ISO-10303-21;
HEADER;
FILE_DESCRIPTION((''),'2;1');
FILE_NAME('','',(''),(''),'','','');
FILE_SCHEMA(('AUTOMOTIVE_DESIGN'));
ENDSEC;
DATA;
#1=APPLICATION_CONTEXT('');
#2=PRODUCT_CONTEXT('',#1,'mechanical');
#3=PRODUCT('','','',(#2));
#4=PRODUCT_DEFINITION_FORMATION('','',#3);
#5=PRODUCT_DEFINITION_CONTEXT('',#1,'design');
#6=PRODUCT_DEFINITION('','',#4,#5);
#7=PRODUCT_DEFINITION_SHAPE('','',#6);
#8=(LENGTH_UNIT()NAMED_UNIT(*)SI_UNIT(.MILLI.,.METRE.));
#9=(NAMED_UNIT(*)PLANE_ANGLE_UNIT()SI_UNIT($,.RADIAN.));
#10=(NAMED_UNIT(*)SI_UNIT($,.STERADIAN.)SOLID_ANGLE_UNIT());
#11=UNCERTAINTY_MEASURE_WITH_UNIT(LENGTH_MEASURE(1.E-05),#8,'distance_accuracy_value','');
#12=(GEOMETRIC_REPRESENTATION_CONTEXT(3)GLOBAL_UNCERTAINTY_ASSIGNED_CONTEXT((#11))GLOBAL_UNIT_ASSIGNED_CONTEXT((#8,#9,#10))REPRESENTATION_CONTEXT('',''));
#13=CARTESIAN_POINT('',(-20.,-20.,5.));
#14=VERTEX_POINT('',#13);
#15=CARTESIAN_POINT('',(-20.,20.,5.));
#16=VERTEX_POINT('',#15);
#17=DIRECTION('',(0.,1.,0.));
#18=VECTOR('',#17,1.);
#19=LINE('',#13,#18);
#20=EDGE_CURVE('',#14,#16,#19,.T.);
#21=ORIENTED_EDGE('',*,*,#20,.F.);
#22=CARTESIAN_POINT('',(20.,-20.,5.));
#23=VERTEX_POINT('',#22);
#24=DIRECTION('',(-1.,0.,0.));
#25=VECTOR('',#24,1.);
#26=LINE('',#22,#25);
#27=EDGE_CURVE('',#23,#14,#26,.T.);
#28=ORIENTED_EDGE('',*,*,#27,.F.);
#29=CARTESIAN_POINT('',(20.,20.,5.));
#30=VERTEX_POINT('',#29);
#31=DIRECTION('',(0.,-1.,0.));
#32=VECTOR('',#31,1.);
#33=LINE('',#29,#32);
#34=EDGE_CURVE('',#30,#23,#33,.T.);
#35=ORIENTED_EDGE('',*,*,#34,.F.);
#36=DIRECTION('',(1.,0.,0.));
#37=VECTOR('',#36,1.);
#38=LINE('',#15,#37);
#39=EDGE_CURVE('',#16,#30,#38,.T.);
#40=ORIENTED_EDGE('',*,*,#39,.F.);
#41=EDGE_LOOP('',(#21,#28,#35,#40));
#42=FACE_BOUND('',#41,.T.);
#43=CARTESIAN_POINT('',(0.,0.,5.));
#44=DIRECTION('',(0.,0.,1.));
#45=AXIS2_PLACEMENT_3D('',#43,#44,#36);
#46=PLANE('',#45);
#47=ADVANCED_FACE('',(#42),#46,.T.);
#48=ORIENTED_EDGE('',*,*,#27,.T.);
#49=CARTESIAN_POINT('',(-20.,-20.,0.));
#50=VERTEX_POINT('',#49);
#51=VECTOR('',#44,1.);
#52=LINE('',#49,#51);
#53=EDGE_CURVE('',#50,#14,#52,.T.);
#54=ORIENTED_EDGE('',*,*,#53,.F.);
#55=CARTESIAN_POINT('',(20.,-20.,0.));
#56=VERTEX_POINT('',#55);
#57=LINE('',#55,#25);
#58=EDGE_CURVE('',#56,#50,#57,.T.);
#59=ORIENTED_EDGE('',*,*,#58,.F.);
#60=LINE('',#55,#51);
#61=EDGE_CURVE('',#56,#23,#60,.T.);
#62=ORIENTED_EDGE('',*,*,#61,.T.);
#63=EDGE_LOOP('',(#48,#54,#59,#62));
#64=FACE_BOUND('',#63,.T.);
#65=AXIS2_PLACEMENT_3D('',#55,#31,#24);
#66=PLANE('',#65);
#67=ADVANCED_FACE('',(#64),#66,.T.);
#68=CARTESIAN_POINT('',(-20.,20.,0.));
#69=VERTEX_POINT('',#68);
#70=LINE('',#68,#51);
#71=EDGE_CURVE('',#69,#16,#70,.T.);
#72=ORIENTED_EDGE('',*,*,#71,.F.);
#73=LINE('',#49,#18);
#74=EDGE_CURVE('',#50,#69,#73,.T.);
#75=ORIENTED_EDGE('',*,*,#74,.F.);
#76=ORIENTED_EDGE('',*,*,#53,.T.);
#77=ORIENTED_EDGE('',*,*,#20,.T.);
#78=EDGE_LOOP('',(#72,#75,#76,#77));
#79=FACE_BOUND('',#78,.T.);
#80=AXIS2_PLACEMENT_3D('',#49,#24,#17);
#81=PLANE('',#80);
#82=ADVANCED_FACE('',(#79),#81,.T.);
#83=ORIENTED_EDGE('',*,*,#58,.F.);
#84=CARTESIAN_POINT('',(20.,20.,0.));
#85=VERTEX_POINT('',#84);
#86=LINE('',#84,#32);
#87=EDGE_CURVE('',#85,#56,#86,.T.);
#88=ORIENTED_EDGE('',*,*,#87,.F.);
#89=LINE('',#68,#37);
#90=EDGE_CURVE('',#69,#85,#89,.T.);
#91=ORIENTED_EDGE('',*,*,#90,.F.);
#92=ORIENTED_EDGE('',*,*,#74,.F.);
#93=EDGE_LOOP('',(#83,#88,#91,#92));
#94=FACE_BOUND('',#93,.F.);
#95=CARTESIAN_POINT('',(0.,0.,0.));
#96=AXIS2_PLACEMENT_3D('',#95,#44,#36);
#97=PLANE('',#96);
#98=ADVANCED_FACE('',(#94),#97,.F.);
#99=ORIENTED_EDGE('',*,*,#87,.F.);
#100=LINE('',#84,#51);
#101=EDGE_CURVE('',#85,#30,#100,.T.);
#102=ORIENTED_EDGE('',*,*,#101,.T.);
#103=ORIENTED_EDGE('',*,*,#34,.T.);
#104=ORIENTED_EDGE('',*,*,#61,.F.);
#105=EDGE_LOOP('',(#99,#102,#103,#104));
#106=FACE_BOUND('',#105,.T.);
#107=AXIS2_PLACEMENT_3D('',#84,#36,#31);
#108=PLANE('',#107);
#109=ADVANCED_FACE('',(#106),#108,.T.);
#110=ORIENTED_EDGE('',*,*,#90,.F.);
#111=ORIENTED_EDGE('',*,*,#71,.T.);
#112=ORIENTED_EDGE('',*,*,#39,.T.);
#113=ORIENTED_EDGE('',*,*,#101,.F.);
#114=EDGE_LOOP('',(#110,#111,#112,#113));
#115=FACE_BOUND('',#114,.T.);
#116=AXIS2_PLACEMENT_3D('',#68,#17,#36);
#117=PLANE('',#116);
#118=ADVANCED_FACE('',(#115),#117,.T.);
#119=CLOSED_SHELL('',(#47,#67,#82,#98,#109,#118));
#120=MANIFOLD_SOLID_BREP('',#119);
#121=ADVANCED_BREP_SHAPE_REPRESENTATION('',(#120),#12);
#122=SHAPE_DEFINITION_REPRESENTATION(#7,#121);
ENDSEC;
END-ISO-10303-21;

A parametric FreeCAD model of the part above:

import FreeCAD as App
import Part
import Sketcher
from FreeCAD import Vector
Q = App.Units.Quantity


def add_polygon(sketch, points):
    """Adds a closed chain of lines whose ends are joined by coincident constraints."""
    first, n = sketch.GeometryCount, len(points)
    for a, b in zip(points, points[1:] + points[:1]):
        sketch.addGeometry(Part.LineSegment(App.Vector(*a, 0), App.Vector(*b, 0)), False)
    for i in range(n):
        sketch.addConstraint(Sketcher.Constraint("Coincident", first + i, 2, first + (i + 1) % n, 1))

doc = App.newDocument("Part")
body = doc.addObject("PartDesign::Body", "Body")

sketch1 = body.newObject("Sketcher::SketchObject", "Sketch")
sketch1.AttachmentSupport = (doc.getObject("XY_Plane"), [""])
sketch1.MapMode = "FlatFace"
add_polygon(sketch1, [(20, 20), (-20, 20), (-20, -20), (20, -20)])
sketch1.addConstraint(Sketcher.Constraint("Horizontal", 0))
sketch1.addConstraint(Sketcher.Constraint("Vertical", 1))
sketch1.addConstraint(Sketcher.Constraint("Horizontal", 2))
sketch1.addConstraint(Sketcher.Constraint("Vertical", 3))
sketch1.addConstraint(Sketcher.Constraint("Symmetric", 0, 2, 2, 2, -1, 1))
sketch1.addConstraint(Sketcher.Constraint("Equal", 2, 1))
sketch1.addConstraint(Sketcher.Constraint("DistanceX", 0, 2, 0, 1, Q("40 mm")))
pad1 = body.newObject("PartDesign::Pad", "Pad")
pad1.Profile = sketch1
pad1.Length = 5

doc.recompute()
